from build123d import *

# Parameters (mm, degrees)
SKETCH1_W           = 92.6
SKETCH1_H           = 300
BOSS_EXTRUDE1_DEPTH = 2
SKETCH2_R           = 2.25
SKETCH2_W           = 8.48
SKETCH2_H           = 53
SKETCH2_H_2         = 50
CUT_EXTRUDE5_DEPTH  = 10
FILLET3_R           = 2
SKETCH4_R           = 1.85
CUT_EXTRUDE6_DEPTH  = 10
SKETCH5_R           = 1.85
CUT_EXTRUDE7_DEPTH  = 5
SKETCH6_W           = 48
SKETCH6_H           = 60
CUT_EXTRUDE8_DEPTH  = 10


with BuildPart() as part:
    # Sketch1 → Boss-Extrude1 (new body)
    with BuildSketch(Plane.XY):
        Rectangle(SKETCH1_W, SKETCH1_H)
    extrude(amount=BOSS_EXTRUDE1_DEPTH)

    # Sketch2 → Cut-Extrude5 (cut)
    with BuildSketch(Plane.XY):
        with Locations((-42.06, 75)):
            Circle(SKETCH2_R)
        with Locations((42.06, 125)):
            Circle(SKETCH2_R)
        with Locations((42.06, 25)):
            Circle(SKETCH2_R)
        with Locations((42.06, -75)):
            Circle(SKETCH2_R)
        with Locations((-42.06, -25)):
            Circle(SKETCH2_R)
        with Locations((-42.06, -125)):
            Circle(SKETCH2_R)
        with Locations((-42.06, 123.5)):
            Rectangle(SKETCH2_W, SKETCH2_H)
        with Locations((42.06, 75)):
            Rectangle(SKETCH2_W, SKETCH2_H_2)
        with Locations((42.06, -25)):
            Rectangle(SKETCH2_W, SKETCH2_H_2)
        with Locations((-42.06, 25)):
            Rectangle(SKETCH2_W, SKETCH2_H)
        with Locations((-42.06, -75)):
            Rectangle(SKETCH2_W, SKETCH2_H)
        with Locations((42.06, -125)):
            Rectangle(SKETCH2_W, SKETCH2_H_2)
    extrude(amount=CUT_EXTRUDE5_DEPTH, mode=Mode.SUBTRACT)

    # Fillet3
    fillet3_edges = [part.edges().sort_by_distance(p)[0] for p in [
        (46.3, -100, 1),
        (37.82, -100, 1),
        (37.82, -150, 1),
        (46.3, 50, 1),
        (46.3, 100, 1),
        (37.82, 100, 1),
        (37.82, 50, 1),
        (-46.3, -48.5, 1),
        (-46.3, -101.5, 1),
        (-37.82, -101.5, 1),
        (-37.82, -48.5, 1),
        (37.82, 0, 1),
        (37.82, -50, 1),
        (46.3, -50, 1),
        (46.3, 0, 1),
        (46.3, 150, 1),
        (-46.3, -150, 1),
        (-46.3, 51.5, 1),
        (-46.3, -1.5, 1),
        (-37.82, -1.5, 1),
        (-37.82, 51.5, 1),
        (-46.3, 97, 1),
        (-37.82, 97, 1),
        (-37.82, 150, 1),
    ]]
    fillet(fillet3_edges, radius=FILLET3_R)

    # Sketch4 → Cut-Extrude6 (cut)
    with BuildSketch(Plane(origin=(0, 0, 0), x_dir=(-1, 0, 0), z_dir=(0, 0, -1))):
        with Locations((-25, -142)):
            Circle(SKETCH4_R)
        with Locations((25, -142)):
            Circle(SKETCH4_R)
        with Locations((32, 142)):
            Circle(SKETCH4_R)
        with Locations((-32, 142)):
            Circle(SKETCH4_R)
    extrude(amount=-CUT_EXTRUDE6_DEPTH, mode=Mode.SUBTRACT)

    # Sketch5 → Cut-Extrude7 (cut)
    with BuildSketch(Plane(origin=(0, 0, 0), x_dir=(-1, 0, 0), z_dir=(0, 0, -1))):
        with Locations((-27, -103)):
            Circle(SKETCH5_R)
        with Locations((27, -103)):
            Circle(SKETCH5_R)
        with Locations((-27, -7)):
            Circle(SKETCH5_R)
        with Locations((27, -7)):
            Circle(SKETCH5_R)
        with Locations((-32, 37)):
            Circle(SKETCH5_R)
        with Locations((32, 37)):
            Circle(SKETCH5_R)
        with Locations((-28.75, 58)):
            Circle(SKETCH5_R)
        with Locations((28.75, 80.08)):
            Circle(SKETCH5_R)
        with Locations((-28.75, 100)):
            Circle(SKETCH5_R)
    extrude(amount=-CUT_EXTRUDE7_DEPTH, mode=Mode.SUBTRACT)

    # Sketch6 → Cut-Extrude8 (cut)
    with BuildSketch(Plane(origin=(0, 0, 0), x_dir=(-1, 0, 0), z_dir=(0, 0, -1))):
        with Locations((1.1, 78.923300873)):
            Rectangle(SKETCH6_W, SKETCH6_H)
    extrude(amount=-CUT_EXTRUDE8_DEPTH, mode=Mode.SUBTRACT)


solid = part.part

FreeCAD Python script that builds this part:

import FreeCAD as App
import Part
import Sketcher
from FreeCAD import Vector


def edges_at(feature, points):
    """Names of the edges that pass closest to the given points."""
    edges = feature.Shape.Edges
    near = lambda p: min(range(len(edges)), key=lambda i: edges[i].distToShape(Part.Vertex(*p))[0])
    return sorted({f"Edge{near(p) + 1}" for p in points})


def add_polygon(sketch, points):
    """Adds a closed chain of lines whose ends are joined by coincident constraints."""
    first, n = sketch.GeometryCount, len(points)
    for a, b in zip(points, points[1:] + points[:1]):
        sketch.addGeometry(Part.LineSegment(App.Vector(*a, 0), App.Vector(*b, 0)), False)
    for i in range(n):
        sketch.addConstraint(Sketcher.Constraint("Coincident", first + i, 2, first + (i + 1) % n, 1))

doc = App.newDocument("Part")
body = doc.addObject("PartDesign::Body", "Body")

sketch1 = doc.addObject("Sketcher::SketchObject", "Sketch")
body.addObject(sketch1)
sketch1.AttachmentSupport = (doc.XY_Plane, [""])
sketch1.MapMode = "FlatFace"
add_polygon(sketch1, [(-46, 150), (-46, -150), (46, -150), (46, 150)])
sketch1.addConstraint([
    Sketcher.Constraint("Vertical", 0),
    Sketcher.Constraint("Horizontal", 1),
    Sketcher.Constraint("Vertical", 2),
    Sketcher.Constraint("Horizontal", 3),
    Sketcher.Constraint("Symmetric", 0, 2, 2, 2, -1, 1),
    Sketcher.Constraint("DistanceY", 0, 2, 0, 1, 300.0),
    Sketcher.Constraint("DistanceX", 1, 1, 1, 2, 92.6),
])
pad1 = doc.addObject("PartDesign::Pad", "Pad")
body.addObject(pad1)
pad1.Profile = sketch1
pad1.Length = 2

sketch2 = doc.addObject("Sketcher::SketchObject", "Sketch001")
body.addObject(sketch2)
sketch2.AttachmentSupport = (doc.XY_Plane, [""])
sketch2.MapMode = "FlatFace"
sketch2.addGeometry(Part.Circle(Vector(-42.1, 75, 0), Vector(0, 0, 1), 2.2), False)
sketch2.addGeometry(Part.Circle(Vector(42.1, 125, 0), Vector(0, 0, 1), 2.2), False)
sketch2.addGeometry(Part.Circle(Vector(42.1, 25, 0), Vector(0, 0, 1), 2.2), False)
sketch2.addGeometry(Part.Circle(Vector(42.1, -75, 0), Vector(0, 0, 1), 2.2), False)
sketch2.addGeometry(Part.Circle(Vector(-42.1, -25, 0), Vector(0, 0, 1), 2.2), False)
sketch2.addGeometry(Part.Circle(Vector(-42.1, -125, 0), Vector(0, 0, 1), 2.2), False)
add_polygon(sketch2, [(-46.3, 150), (-46.3, 97), (-37.8, 97), (-37.8, 150)])
add_polygon(sketch2, [(37.8, 100), (37.8, 50), (46.3, 50), (46.3, 100)])
add_polygon(sketch2, [(37.8, 0), (37.8, -50), (46.3, -50), (46.3, 0)])
add_polygon(sketch2, [(-46.3, 51.5), (-46.3, -1.5), (-37.8, -1.5), (-37.8, 51.5)])
add_polygon(sketch2, [(-46.3, -48.5), (-46.3, -101.5), (-37.8, -101.5), (-37.8, -48.5)])
add_polygon(sketch2, [(37.8, -100), (37.8, -150), (46.3, -150), (46.3, -100)])
sketch2.addConstraint([
    Sketcher.Constraint("Vertical", 6),
    Sketcher.Constraint("Horizontal", 7),
    Sketcher.Constraint("Vertical", 8),
    Sketcher.Constraint("Horizontal", 9),
    Sketcher.Constraint("Vertical", 10),
    Sketcher.Constraint("Horizontal", 11),
    Sketcher.Constraint("Vertical", 12),
    Sketcher.Constraint("Horizontal", 13),
    Sketcher.Constraint("Vertical", 14),
    Sketcher.Constraint("Horizontal", 15),
    Sketcher.Constraint("Vertical", 16),
    Sketcher.Constraint("Horizontal", 17),
    Sketcher.Constraint("Vertical", 18),
    Sketcher.Constraint("Horizontal", 19),
    Sketcher.Constraint("Vertical", 20),
    Sketcher.Constraint("Horizontal", 21),
    Sketcher.Constraint("Vertical", 22),
    Sketcher.Constraint("Horizontal", 23),
    Sketcher.Constraint("Vertical", 24),
    Sketcher.Constraint("Horizontal", 25),
    Sketcher.Constraint("Vertical", 26),
    Sketcher.Constraint("Horizontal", 27),
    Sketcher.Constraint("Vertical", 28),
    Sketcher.Constraint("Horizontal", 29),
    Sketcher.Constraint("Equal", 0, 1),
    Sketcher.Constraint("Equal", 1, 2),
    Sketcher.Constraint("Equal", 2, 3),
    Sketcher.Constraint("Equal", 3, 4),
    Sketcher.Constraint("Equal", 4, 5),
    Sketcher.Constraint("Symmetric", 0, 3, 3, 3, -1, 1),
    Sketcher.Constraint("Symmetric", 2, 3, 4, 3, -1, 1),
    Sketcher.Constraint("Symmetric", 1, 3, 5, 3, -1, 1),
    Sketcher.Constraint("Symmetric", 8, 2, 26, 2, -1, 1),
    Sketcher.Constraint("Symmetric", 10, 2, 14, 2, -1),
    Sketcher.Constraint("Symmetric", 12, 2, 28, 2, -1),
    Sketcher.Constraint("PointOnObject", 16, 2, -1),
    Sketcher.Constraint("Vertical", 1, 3, 2, 3),
    Sketcher.Constraint("Vertical", 2, 3, 3, 3),
    Sketcher.Constraint("Vertical", 12, 2, 15, 2),
    Sketcher.Constraint("Vertical", 9, 2, 18, 2),
    Sketcher.Constraint("Vertical", 8, 2, 19, 2),
    Sketcher.Constraint("Vertical", 21, 2, 22, 2),
    Sketcher.Constraint("Vertical", 20, 2, 23, 2),
    Sketcher.Constraint("Vertical", 17, 2, 26, 2),
    Sketcher.Constraint("Equal", 9, 11),
    Sketcher.Constraint("Equal", 12, 14),
    Sketcher.Constraint("Equal", 8, 18),
    Sketcher.Constraint("Equal", 20, 22),
    Sketcher.Constraint("Equal", 16, 26),
    Sketcher.Constraint("Diameter", 0, 4.5),
    Sketcher.Constraint("DistanceY", 6, 2, 6, 1, 53.0),
    Sketcher.Constraint("DistanceY", 10, 2, 10, 1, 50.0),
    Sketcher.Constraint("DistanceY", -1, 1, 0, 3, 75.0),
    Sketcher.Constraint("DistanceY", -1, 1, 1, 3, 125.0),
    Sketcher.Constraint("DistanceY", -1, 1, 2, 3, 25.0),
    Sketcher.Constraint("DistanceY", 22, 2, 18, 2, 100.0),
    Sketcher.Constraint("DistanceX", 7, 1, 7, 2, 8.48),
    Sketcher.Constraint("DistanceX", 6, 2, -1, 1, 46.3),
    Sketcher.Constraint("DistanceY", 18, 2, -1, 1, 1.5),
    Sketcher.Constraint("DistanceX", 0, 3, -1, 1, 42.06),
])
pocket1 = doc.addObject("PartDesign::Pocket", "Pocket")
body.addObject(pocket1)
pocket1.Profile = sketch2
pocket1.Length = 10
pocket1.Reversed = True
doc.recompute()

fillet = doc.addObject("PartDesign::Fillet", "Fillet")
body.addObject(fillet)
fillet.Base = (pocket1, edges_at(pocket1, [
    (46.3, -100, 1),
    (37.82, -100, 1),
    (37.82, -150, 1),
    (46.3, 50, 1),
    (46.3, 100, 1),
    (37.82, 100, 1),
    (37.82, 50, 1),
    (-46.3, -48.5, 1),
    (-46.3, -101.5, 1),
    (-37.82, -101.5, 1),
    (-37.82, -48.5, 1),
    (37.82, 0, 1),
    (37.82, -50, 1),
    (46.3, -50, 1),
    (46.3, 0, 1),
    (46.3, 150, 1),
    (-46.3, -150, 1),
    (-46.3, 51.5, 1),
    (-46.3, -1.5, 1),
    (-37.82, -1.5, 1),
    (-37.82, 51.5, 1),
    (-46.3, 97, 1),
    (-37.82, 97, 1),
    (-37.82, 150, 1),
]))
fillet.Radius = 2

sketch3 = doc.addObject("Sketcher::SketchObject", "Sketch002")
body.addObject(sketch3)
sketch3.AttachmentSupport = (doc.XY_Plane, [""])
sketch3.MapMode = "FlatFace"
sketch3.addGeometry([
    Part.Circle(Vector(25, -142, 0), Vector(0, 0, 1), 1.9),
    Part.Circle(Vector(-25, -142, 0), Vector(0, 0, 1), 1.9),
    Part.Circle(Vector(-32, 142, 0), Vector(0, 0, 1), 1.9),
    Part.Circle(Vector(32, 142, 0), Vector(0, 0, 1), 1.9),
], False)
sketch3.addConstraint([
    Sketcher.Constraint("Equal", 0, 1),
    Sketcher.Constraint("Equal", 1, 2),
    Sketcher.Constraint("Equal", 2, 3),
    Sketcher.Constraint("Symmetric", 0, 3, 1, 3, -2),
    Sketcher.Constraint("Symmetric", 2, 3, 3, 3, -2),
    Sketcher.Constraint("Diameter", 0, 3.7),
    Sketcher.Constraint("DistanceX", -1, 1, 0, 3, 25.0),
    Sketcher.Constraint("DistanceY", 0, 3, -1, 1, 142.0),
    Sketcher.Constraint("DistanceX", 2, 3, -1, 1, 32.0),
    Sketcher.Constraint("DistanceY", -1, 1, 2, 3, 142.0),
])
pocket2 = doc.addObject("PartDesign::Pocket", "Pocket001")
body.addObject(pocket2)
pocket2.Profile = sketch3
pocket2.Length = 10
pocket2.Reversed = True

sketch4 = doc.addObject("Sketcher::SketchObject", "Sketch003")
body.addObject(sketch4)
sketch4.AttachmentSupport = (doc.XY_Plane, [""])
sketch4.MapMode = "FlatFace"
sketch4.addGeometry([
    Part.Circle(Vector(27, -103, 0), Vector(0, 0, 1), 1.9),
    Part.Circle(Vector(-27, -103, 0), Vector(0, 0, 1), 1.9),
    Part.Circle(Vector(27, -7, 0), Vector(0, 0, 1), 1.9),
    Part.Circle(Vector(-27, -7, 0), Vector(0, 0, 1), 1.9),
    Part.Circle(Vector(32, 37, 0), Vector(0, 0, 1), 1.9),
    Part.Circle(Vector(-32, 37, 0), Vector(0, 0, 1), 1.9),
    Part.Circle(Vector(28.8, 58, 0), Vector(0, 0, 1), 1.9),
    Part.Circle(Vector(-28.8, 80.1, 0), Vector(0, 0, 1), 1.9),
    Part.Circle(Vector(28.8, 100, 0), Vector(0, 0, 1), 1.9),
], False)
sketch4.addConstraint([
    Sketcher.Constraint("Equal", 0, 1),
    Sketcher.Constraint("Equal", 1, 2),
    Sketcher.Constraint("Equal", 2, 3),
    Sketcher.Constraint("Equal", 3, 4),
    Sketcher.Constraint("Equal", 4, 5),
    Sketcher.Constraint("Equal", 5, 6),
    Sketcher.Constraint("Equal", 6, 7),
    Sketcher.Constraint("Equal", 7, 8),
    Sketcher.Constraint("Symmetric", 0, 3, 1, 3, -2),
    Sketcher.Constraint("Symmetric", 2, 3, 3, 3, -2),
    Sketcher.Constraint("Symmetric", 4, 3, 5, 3, -2),
    Sketcher.Constraint("Vertical", 0, 3, 2, 3),
    Sketcher.Constraint("Vertical", 6, 3, 8, 3),
    Sketcher.Constraint("Diameter", 0, 3.7),
    Sketcher.Constraint("DistanceX", -1, 1, 0, 3, 27.0),
    Sketcher.Constraint("DistanceY", 0, 3, -1, 1, 103.0),
    Sketcher.Constraint("DistanceY", 2, 3, -1, 1, 7.0),
    Sketcher.Constraint("DistanceX", -1, 1, 4, 3, 32.0),
    Sketcher.Constraint("DistanceY", -1, 1, 4, 3, 37.0),
    Sketcher.Constraint("DistanceY", -1, 1, 6, 3, 58.0),
    Sketcher.Constraint("DistanceY", -1, 1, 8, 3, 100.0),
    Sketcher.Constraint("DistanceX", 7, 3, 6, 3, 57.5),
    Sketcher.Constraint("DistanceX", -1, 1, 6, 3, 28.75),
    Sketcher.Constraint("DistanceY", -1, 1, 7, 3, 80.08),
])
pocket3 = doc.addObject("PartDesign::Pocket", "Pocket002")
body.addObject(pocket3)
pocket3.Profile = sketch4
pocket3.Length = 5
pocket3.Reversed = True

sketch5 = doc.addObject("Sketcher::SketchObject", "Sketch004")
body.addObject(sketch5)
sketch5.AttachmentSupport = (doc.XY_Plane, [""])
sketch5.MapMode = "FlatFace"
add_polygon(sketch5, [(23, 109), (23, 49), (-25, 49), (-25, 109)])
sketch5.addConstraint([
    Sketcher.Constraint("Vertical", 0),
    Sketcher.Constraint("Horizontal", 1),
    Sketcher.Constraint("Vertical", 2),
    Sketcher.Constraint("Horizontal", 3),
    Sketcher.Constraint("DistanceX", 1, 2, 1, 1, 48.0),
    Sketcher.Constraint("DistanceY", 0, 2, 0, 1, 60.0),
    Sketcher.Constraint("DistanceX", -1, 1, 0, 2, 22.9),
    Sketcher.Constraint("DistanceY", -1, 1, 0, 2, 48.923301),
])
pocket4 = doc.addObject("PartDesign::Pocket", "Pocket003")
body.addObject(pocket4)
pocket4.Profile = sketch5
pocket4.Length = 10
pocket4.Reversed = True

doc.recompute()
